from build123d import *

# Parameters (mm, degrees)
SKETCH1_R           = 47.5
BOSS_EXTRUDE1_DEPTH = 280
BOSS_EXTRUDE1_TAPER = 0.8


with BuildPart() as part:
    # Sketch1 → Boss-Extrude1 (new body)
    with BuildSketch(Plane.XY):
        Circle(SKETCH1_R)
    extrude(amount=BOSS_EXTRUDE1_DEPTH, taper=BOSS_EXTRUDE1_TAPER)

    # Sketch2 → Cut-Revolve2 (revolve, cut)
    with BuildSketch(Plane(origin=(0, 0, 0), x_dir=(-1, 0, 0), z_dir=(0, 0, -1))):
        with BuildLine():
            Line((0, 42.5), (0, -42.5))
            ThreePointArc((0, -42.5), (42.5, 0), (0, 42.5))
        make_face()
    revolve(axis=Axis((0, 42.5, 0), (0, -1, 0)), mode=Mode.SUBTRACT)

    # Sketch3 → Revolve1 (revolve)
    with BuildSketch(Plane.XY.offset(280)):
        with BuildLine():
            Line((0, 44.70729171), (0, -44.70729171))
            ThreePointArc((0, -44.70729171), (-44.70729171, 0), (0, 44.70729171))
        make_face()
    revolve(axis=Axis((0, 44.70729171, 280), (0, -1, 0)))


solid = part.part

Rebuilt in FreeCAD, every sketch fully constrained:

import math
import FreeCAD as App
import Part
import Sketcher

V = App.Vector

doc = App.newDocument("Part")
params = doc.addObject("Spreadsheet::Sheet", "Params")
for row, (alias, value) in enumerate([
    ("sketch1_diameter", "95 mm"),
    ("pad1_length", "280 mm"),
    ("pad1_taper", "-0.8 deg"),
    ("sketch2_radius", "42.5 mm"),
    ("groove_angle", "360 deg"),
    ("revolution_angle", "360 deg"),
], start=1):
    params.set(f"A{row}", alias)
    params.set(f"B{row}", "=" + value)
    params.setAlias(f"B{row}", alias)

body = doc.addObject("PartDesign::Body", "Body")

# Sketch on XY plane
sketch1 = body.newObject("Sketcher::SketchObject", "Sketch")
sketch1.AttachmentSupport = (doc.getObject("XY_Plane"), [""])
sketch1.MapMode = "FlatFace"
sketch1.addGeometry(Part.Circle(V(0, 0, 0), V(0, 0, 1), 48), False)
sketch1.addConstraint([
    Sketcher.Constraint("Coincident", 0, 3, -1, 1),
    Sketcher.Constraint("Diameter", 0, 95.0),
])
sketch1.setExpression("Constraints[1]", "Params.sketch1_diameter")
pad1 = body.newObject("PartDesign::Pad", "Pad")
pad1.Profile = sketch1
pad1.setExpression("Length", "Params.pad1_length")
pad1.setExpression("TaperAngle", "Params.pad1_taper")

# Sketch on XY plane
sketch2 = body.newObject("Sketcher::SketchObject", "Sketch001")
sketch2.AttachmentSupport = (doc.getObject("XY_Plane"), [""])
sketch2.MapMode = "FlatFace"
sketch2.addGeometry([
    Part.LineSegment(V(0, 42, 0), V(0, -42, 0)),
    Part.ArcOfCircle(Part.Circle(V(0, 0, 0), V(0, 0, 1), 42), math.radians(90), math.radians(270)),
], False)
sketch2.addConstraint([
    Sketcher.Constraint("Coincident", 0, 1, 1, 1),
    Sketcher.Constraint("Coincident", 1, 2, 0, 2),
    Sketcher.Constraint("Vertical", 0),
    Sketcher.Constraint("Coincident", 1, 3, -1, 1),
    Sketcher.Constraint("PointOnObject", 0, 1, -2),
    Sketcher.Constraint("Radius", 1, 42.5),
])
sketch2.setExpression("Constraints[5]", "Params.sketch2_radius")
groove = body.newObject("PartDesign::Groove", "Groove")
groove.Profile = sketch2
groove.ReferenceAxis = (sketch2, ["V_Axis"])
groove.setExpression("Angle", "Params.groove_angle")

# Sketch on XY plane
sketch3 = body.newObject("Sketcher::SketchObject", "Sketch002")
sketch3.AttachmentSupport = (doc.getObject("XY_Plane"), [""])
sketch3.MapMode = "FlatFace"
sketch3.AttachmentOffset = App.Placement(V(0, 0, 280), App.Rotation())
sketch3.addGeometry([
    Part.LineSegment(V(0, -45, 0), V(0, 45, 0)),
    Part.ArcOfCircle(Part.Circle(V(0, 0, 0), V(0, 0, 1), 45), math.radians(90), math.radians(270)),
], False)
sketch3.addConstraint([
    Sketcher.Constraint("Coincident", 0, 1, 1, 2),
    Sketcher.Constraint("Coincident", 1, 1, 0, 2),
    Sketcher.Constraint("Vertical", 0),
    Sketcher.Constraint("Coincident", 1, 3, -1, 1),
    Sketcher.Constraint("PointOnObject", 0, 1, -2),
    Sketcher.Constraint("Radius", 1, 44.707292),
])
revolution = body.newObject("PartDesign::Revolution", "Revolution")
revolution.Profile = sketch3
revolution.ReferenceAxis = (sketch3, ["V_Axis"])
revolution.setExpression("Angle", "Params.revolution_angle")

doc.recompute()
